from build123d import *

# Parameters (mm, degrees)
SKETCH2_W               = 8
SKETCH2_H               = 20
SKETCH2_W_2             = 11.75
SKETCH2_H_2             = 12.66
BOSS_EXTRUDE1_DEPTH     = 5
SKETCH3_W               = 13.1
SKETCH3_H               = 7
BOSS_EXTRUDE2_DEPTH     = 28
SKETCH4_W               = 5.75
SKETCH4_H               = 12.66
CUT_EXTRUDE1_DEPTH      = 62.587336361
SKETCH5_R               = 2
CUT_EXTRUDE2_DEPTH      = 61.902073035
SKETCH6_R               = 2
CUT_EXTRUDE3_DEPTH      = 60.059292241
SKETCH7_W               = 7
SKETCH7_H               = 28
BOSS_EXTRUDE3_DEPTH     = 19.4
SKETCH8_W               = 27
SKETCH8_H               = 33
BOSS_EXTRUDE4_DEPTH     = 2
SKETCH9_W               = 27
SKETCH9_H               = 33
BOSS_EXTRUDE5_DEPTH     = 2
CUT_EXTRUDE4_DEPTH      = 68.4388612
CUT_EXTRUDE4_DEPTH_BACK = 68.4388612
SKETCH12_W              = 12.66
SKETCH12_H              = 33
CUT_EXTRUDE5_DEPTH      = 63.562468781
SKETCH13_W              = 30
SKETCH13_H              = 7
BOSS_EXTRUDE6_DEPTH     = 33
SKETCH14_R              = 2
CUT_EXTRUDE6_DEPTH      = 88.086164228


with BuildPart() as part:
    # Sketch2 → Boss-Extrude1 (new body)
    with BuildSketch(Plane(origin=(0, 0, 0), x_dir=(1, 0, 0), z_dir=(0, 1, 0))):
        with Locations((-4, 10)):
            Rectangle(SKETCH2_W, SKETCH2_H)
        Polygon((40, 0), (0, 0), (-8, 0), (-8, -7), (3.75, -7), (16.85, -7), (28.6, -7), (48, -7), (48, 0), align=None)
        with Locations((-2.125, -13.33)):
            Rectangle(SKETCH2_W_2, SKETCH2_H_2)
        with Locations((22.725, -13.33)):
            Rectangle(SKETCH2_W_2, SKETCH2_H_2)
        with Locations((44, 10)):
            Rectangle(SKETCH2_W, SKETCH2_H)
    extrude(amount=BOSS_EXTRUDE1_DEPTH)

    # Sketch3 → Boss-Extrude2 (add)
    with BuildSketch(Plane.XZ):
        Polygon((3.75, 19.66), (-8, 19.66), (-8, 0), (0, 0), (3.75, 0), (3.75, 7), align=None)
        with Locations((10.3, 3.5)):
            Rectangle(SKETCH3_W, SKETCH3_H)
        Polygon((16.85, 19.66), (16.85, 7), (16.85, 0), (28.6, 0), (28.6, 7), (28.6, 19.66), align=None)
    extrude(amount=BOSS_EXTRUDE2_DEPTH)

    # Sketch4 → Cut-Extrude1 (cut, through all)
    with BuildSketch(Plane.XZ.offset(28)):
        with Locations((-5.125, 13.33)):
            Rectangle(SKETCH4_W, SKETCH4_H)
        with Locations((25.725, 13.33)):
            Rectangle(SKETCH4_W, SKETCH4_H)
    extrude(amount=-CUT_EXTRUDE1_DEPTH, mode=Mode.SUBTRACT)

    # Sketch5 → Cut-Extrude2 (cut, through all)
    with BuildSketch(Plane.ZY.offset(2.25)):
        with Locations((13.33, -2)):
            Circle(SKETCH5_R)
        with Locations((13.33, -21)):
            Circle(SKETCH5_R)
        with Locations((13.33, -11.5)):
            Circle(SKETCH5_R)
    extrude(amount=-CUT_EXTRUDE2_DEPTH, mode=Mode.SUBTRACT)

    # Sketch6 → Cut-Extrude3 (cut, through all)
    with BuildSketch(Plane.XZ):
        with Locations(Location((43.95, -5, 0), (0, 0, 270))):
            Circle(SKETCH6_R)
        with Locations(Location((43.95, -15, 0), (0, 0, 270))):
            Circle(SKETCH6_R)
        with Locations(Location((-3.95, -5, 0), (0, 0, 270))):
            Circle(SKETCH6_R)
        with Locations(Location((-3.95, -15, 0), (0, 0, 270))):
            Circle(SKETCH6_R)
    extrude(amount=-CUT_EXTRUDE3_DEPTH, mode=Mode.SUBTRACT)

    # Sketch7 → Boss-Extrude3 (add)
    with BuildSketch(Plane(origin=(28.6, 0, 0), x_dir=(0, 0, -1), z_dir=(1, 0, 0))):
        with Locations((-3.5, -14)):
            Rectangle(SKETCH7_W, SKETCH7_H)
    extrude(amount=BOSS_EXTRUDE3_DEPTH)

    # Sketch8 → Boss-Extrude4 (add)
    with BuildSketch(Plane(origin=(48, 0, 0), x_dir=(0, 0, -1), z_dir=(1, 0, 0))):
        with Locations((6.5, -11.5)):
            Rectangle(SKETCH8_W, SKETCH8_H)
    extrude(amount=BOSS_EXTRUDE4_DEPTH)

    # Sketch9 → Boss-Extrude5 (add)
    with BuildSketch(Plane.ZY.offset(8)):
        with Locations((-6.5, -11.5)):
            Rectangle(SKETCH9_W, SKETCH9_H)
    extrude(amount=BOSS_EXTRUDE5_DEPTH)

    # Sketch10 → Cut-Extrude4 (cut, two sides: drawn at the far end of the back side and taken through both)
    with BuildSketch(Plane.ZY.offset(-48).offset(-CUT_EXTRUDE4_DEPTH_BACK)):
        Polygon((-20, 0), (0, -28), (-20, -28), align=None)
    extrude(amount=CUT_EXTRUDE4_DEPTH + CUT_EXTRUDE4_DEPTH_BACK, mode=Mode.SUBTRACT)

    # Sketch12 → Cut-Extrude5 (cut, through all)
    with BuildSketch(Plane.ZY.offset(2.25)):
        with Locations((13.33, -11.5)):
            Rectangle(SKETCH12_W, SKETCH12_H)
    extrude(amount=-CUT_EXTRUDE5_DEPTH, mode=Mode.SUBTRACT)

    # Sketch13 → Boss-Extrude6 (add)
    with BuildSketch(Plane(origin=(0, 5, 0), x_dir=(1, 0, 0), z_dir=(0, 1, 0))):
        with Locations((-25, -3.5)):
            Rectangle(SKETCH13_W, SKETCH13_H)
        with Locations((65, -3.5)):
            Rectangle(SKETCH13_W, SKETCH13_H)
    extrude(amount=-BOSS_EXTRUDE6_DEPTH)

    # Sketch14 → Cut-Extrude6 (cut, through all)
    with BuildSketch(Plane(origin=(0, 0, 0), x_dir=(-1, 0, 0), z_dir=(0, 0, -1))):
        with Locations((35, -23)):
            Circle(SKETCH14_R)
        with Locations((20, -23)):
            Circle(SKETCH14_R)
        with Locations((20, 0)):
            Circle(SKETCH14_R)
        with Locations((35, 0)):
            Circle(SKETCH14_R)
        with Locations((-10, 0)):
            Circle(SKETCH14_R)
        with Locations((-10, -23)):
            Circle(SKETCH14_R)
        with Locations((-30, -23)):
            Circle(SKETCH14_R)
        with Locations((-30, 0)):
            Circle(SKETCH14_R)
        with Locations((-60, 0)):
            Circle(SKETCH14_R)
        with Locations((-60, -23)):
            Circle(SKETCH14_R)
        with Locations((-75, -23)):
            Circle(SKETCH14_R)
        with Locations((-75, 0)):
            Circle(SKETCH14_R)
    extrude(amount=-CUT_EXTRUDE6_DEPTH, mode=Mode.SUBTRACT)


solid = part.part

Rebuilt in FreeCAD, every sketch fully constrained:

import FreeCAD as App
import Part
import Sketcher


def add_polygon(sketch, points):
    """Adds a closed chain of lines whose ends are joined by coincident constraints."""
    first, n = sketch.GeometryCount, len(points)
    for a, b in zip(points, points[1:] + points[:1]):
        sketch.addGeometry(Part.LineSegment(App.Vector(*a, 0), App.Vector(*b, 0)), False)
    for i in range(n):
        sketch.addConstraint(Sketcher.Constraint("Coincident", first + i, 2, first + (i + 1) % n, 1))

doc = App.newDocument("Part")
body = doc.addObject("PartDesign::Body", "Body")

# Sketch on XZ plane
sketch1 = body.newObject("Sketcher::SketchObject", "Sketch")
sketch1.AttachmentSupport = (doc.getObject("XZ_Plane"), [""])
sketch1.MapMode = "FlatFace"
add_polygon(sketch1, [(-8, -20), (-8, 19.66), (3.75, 19.66), (3.75, 7), (16.85, 7), (16.85, 19.66), (28.6, 19.66), (28.6, 7), (48, 7), (48, -20), (40, -20), (40, 0), (0, 0), (0, -20)])  # lines 0-13
sketch1.addConstraint(Sketcher.Constraint("Vertical", 0))
sketch1.addConstraint(Sketcher.Constraint("Horizontal", 1))
sketch1.addConstraint(Sketcher.Constraint("Vertical", 2))
sketch1.addConstraint(Sketcher.Constraint("Horizontal", 3))
sketch1.addConstraint(Sketcher.Constraint("Vertical", 4))
sketch1.addConstraint(Sketcher.Constraint("Horizontal", 5))
sketch1.addConstraint(Sketcher.Constraint("Vertical", 6))
sketch1.addConstraint(Sketcher.Constraint("Horizontal", 7))
sketch1.addConstraint(Sketcher.Constraint("Vertical", 8))
sketch1.addConstraint(Sketcher.Constraint("Horizontal", 9))
sketch1.addConstraint(Sketcher.Constraint("Vertical", 10))
sketch1.addConstraint(Sketcher.Constraint("Horizontal", 11))
sketch1.addConstraint(Sketcher.Constraint("Vertical", 12))
sketch1.addConstraint(Sketcher.Constraint("Horizontal", 13))
sketch1.addConstraint(Sketcher.Constraint("Coincident", 11, 2, -1, 1))
sketch1.addConstraint(Sketcher.Constraint("Horizontal", 1, 2, 4, 2))
sketch1.addConstraint(Sketcher.Constraint("Horizontal", 3, 2, 6, 2))
sketch1.addConstraint(Sketcher.Constraint("Horizontal", 9, 2, 12, 2))
sketch1.addConstraint(Sketcher.Constraint("Equal", 1, 5))
sketch1.addConstraint(Sketcher.Constraint("Equal", 9, 13))
sketch1.addConstraint(Sketcher.Constraint("DistanceX", 9, 2, 9, 1, 8.0))
sketch1.addConstraint(Sketcher.Constraint("DistanceX", 11, 2, 11, 1, 40.0))
sketch1.addConstraint(Sketcher.Constraint("DistanceY", 8, 2, 8, 1, 27.0))
sketch1.addConstraint(Sketcher.Constraint("DistanceY", 10, 1, 10, 2, 20.0))
sketch1.addConstraint(Sketcher.Constraint("DistanceX", 3, 1, 3, 2, 13.1))
sketch1.addConstraint(Sketcher.Constraint("DistanceX", 7, 1, 7, 2, 19.4))
sketch1.addConstraint(Sketcher.Constraint("DistanceY", 0, 1, 0, 2, 39.66))
pad1 = body.newObject("PartDesign::Pad", "Pad")
pad1.Profile = sketch1
pad1.Length = 5
pad1.Reversed = True

# Sketch on XZ plane
sketch2 = body.newObject("Sketcher::SketchObject", "Sketch001")
sketch2.AttachmentSupport = (doc.getObject("XZ_Plane"), [""])
sketch2.MapMode = "FlatFace"
add_polygon(sketch2, [(3.75, 19.66), (-8, 19.66), (-8, 0), (28.6, 0), (28.6, 19.66), (16.85, 19.66), (16.85, 7), (3.75, 7)])  # lines 0-7
sketch2.addConstraint(Sketcher.Constraint("Horizontal", 0))
sketch2.addConstraint(Sketcher.Constraint("Vertical", 1))
sketch2.addConstraint(Sketcher.Constraint("Horizontal", 2))
sketch2.addConstraint(Sketcher.Constraint("Vertical", 3))
sketch2.addConstraint(Sketcher.Constraint("Horizontal", 4))
sketch2.addConstraint(Sketcher.Constraint("Vertical", 5))
sketch2.addConstraint(Sketcher.Constraint("Horizontal", 6))
sketch2.addConstraint(Sketcher.Constraint("Vertical", 7))
sketch2.addConstraint(Sketcher.Constraint("PointOnObject", 1, 2, -1))
sketch2.addConstraint(Sketcher.Constraint("Horizontal", 0, 2, 3, 2))
sketch2.addConstraint(Sketcher.Constraint("Equal", 0, 4))
sketch2.addConstraint(Sketcher.Constraint("DistanceX", 2, 1, 2, 2, 36.6))
sketch2.addConstraint(Sketcher.Constraint("DistanceX", 6, 2, 6, 1, 13.1))
sketch2.addConstraint(Sketcher.Constraint("DistanceX", 0, 2, -1, 1, 8.0))
sketch2.addConstraint(Sketcher.Constraint("DistanceY", -1, 1, 5, 2, 7.0))
sketch2.addConstraint(Sketcher.Constraint("DistanceY", 1, 2, 1, 1, 19.66))
pad2 = body.newObject("PartDesign::Pad", "Pad001")
pad2.Profile = sketch2
pad2.Length = 28

# Sketch on XZ plane
sketch3 = body.newObject("Sketcher::SketchObject", "Sketch002")
sketch3.AttachmentSupport = (doc.getObject("XZ_Plane"), [""])
sketch3.MapMode = "FlatFace"
sketch3.AttachmentOffset = App.Placement(App.Vector(0, 0, 28), App.Rotation())
add_polygon(sketch3, [(-8, 19.66), (-8, 7), (-2.25, 7), (-2.25, 19.66)])  # lines 0-3
add_polygon(sketch3, [(22.85, 19.66), (22.85, 7), (28.6, 7), (28.6, 19.66)])  # lines 4-7
sketch3.addConstraint(Sketcher.Constraint("Vertical", 0))
sketch3.addConstraint(Sketcher.Constraint("Horizontal", 1))
sketch3.addConstraint(Sketcher.Constraint("Vertical", 2))
sketch3.addConstraint(Sketcher.Constraint("Horizontal", 3))
sketch3.addConstraint(Sketcher.Constraint("Vertical", 4))
sketch3.addConstraint(Sketcher.Constraint("Horizontal", 5))
sketch3.addConstraint(Sketcher.Constraint("Vertical", 6))
sketch3.addConstraint(Sketcher.Constraint("Horizontal", 7))
sketch3.addConstraint(Sketcher.Constraint("Horizontal", 1, 2, 4, 2))
sketch3.addConstraint(Sketcher.Constraint("Horizontal", 3, 2, 6, 2))
sketch3.addConstraint(Sketcher.Constraint("Equal", 3, 5))
sketch3.addConstraint(Sketcher.Constraint("DistanceX", 0, 2, -1, 1, 8.0))
sketch3.addConstraint(Sketcher.Constraint("DistanceY", -1, 1, 0, 2, 7.0))
sketch3.addConstraint(Sketcher.Constraint("DistanceX", 1, 1, 1, 2, 5.75))
sketch3.addConstraint(Sketcher.Constraint("DistanceY", 0, 2, 0, 1, 12.66))
sketch3.addConstraint(Sketcher.Constraint("DistanceX", -1, 1, 5, 2, 28.6))
pocket1 = body.newObject("PartDesign::Pocket", "Pocket")
pocket1.Profile = sketch3
pocket1.Type = "ThroughAll"

# Sketch on YZ plane
sketch4 = body.newObject("Sketcher::SketchObject", "Sketch003")
sketch4.AttachmentSupport = (doc.getObject("YZ_Plane"), [""])
sketch4.MapMode = "FlatFace"
sketch4.AttachmentOffset = App.Placement(App.Vector(0, 0, -2.25), App.Rotation())
sketch4.addGeometry(Part.Circle(App.Vector(-2, 13.33, 0), App.Vector(0, 0, 1), 2), False)
sketch4.addGeometry(Part.Circle(App.Vector(-21, 13.33, 0), App.Vector(0, 0, 1), 2), False)
sketch4.addGeometry(Part.Circle(App.Vector(-11.5, 13.33, 0), App.Vector(0, 0, 1), 2), False)
sketch4.addConstraint(Sketcher.Constraint("Equal", 0, 1))
sketch4.addConstraint(Sketcher.Constraint("Equal", 1, 2))
sketch4.addConstraint(Sketcher.Constraint("Horizontal", 0, 3, 1, 3))
sketch4.addConstraint(Sketcher.Constraint("Horizontal", 1, 3, 2, 3))
sketch4.addConstraint(Sketcher.Constraint("Diameter", 0, 4.0))
sketch4.addConstraint(Sketcher.Constraint("DistanceX", 0, 3, -1, 1, 2.0))
sketch4.addConstraint(Sketcher.Constraint("DistanceX", 1, 3, -1, 1, 21.0))
sketch4.addConstraint(Sketcher.Constraint("DistanceX", 2, 3, -1, 1, 11.5))
sketch4.addConstraint(Sketcher.Constraint("DistanceY", -1, 1, 0, 3, 13.33))
pocket2 = body.newObject("PartDesign::Pocket", "Pocket001")
pocket2.Profile = sketch4
pocket2.Type = "ThroughAll"
pocket2.Reversed = True

# Sketch on XZ plane
sketch5 = body.newObject("Sketcher::SketchObject", "Sketch004")
sketch5.AttachmentSupport = (doc.getObject("XZ_Plane"), [""])
sketch5.MapMode = "FlatFace"
sketch5.addGeometry(Part.Circle(App.Vector(43.95, -5, 0), App.Vector(0, 0, 1), 2), False)
sketch5.addGeometry(Part.Circle(App.Vector(43.95, -15, 0), App.Vector(0, 0, 1), 2), False)
sketch5.addGeometry(Part.Circle(App.Vector(-3.95, -5, 0), App.Vector(0, 0, 1), 2), False)
sketch5.addGeometry(Part.Circle(App.Vector(-3.95, -15, 0), App.Vector(0, 0, 1), 2), False)
sketch5.addConstraint(Sketcher.Constraint("Equal", 0, 1))
sketch5.addConstraint(Sketcher.Constraint("Equal", 1, 2))
sketch5.addConstraint(Sketcher.Constraint("Equal", 2, 3))
sketch5.addConstraint(Sketcher.Constraint("Horizontal", 0, 3, 2, 3))
sketch5.addConstraint(Sketcher.Constraint("Horizontal", 1, 3, 3, 3))
sketch5.addConstraint(Sketcher.Constraint("Vertical", 0, 3, 1, 3))
sketch5.addConstraint(Sketcher.Constraint("Vertical", 2, 3, 3, 3))
sketch5.addConstraint(Sketcher.Constraint("Diameter", 0, 4.0))
sketch5.addConstraint(Sketcher.Constraint("DistanceY", 0, 3, -1, 1, 5.0))
sketch5.addConstraint(Sketcher.Constraint("DistanceY", 1, 3, -1, 1, 15.0))
sketch5.addConstraint(Sketcher.Constraint("DistanceX", 2, 3, 0, 3, 47.9))
sketch5.addConstraint(Sketcher.Constraint("DistanceX", -1, 1, 0, 3, 43.95))
pocket3 = body.newObject("PartDesign::Pocket", "Pocket002")
pocket3.Profile = sketch5
pocket3.Type = "ThroughAll"

# Sketch on YZ plane
sketch6 = body.newObject("Sketcher::SketchObject", "Sketch005")
sketch6.AttachmentSupport = (doc.getObject("YZ_Plane"), [""])
sketch6.MapMode = "FlatFace"
sketch6.AttachmentOffset = App.Placement(App.Vector(0, 0, 28.6), App.Rotation())
add_polygon(sketch6, [(0, 7), (-28, 7), (-28, 0), (0, 0)])  # lines 0-3
sketch6.addConstraint(Sketcher.Constraint("Horizontal", 0))
sketch6.addConstraint(Sketcher.Constraint("Vertical", 1))
sketch6.addConstraint(Sketcher.Constraint("Horizontal", 2))
sketch6.addConstraint(Sketcher.Constraint("Vertical", 3))
sketch6.addConstraint(Sketcher.Constraint("Coincident", 2, 2, -1, 1))
sketch6.addConstraint(Sketcher.Constraint("DistanceX", 0, 2, 0, 1, 28.0))
sketch6.addConstraint(Sketcher.Constraint("DistanceY", 1, 2, 1, 1, 7.0))
pad3 = body.newObject("PartDesign::Pad", "Pad002")
pad3.Profile = sketch6
pad3.Length = 19.4

# Sketch on YZ plane
sketch7 = body.newObject("Sketcher::SketchObject", "Sketch006")
sketch7.AttachmentSupport = (doc.getObject("YZ_Plane"), [""])
sketch7.MapMode = "FlatFace"
sketch7.AttachmentOffset = App.Placement(App.Vector(0, 0, 48), App.Rotation())
add_polygon(sketch7, [(5, 7), (-28, 7), (-28, -20), (5, -20)])  # lines 0-3
sketch7.addConstraint(Sketcher.Constraint("Horizontal", 0))
sketch7.addConstraint(Sketcher.Constraint("Vertical", 1))
sketch7.addConstraint(Sketcher.Constraint("Horizontal", 2))
sketch7.addConstraint(Sketcher.Constraint("Vertical", 3))
sketch7.addConstraint(Sketcher.Constraint("DistanceX", 0, 2, 0, 1, 33.0))
sketch7.addConstraint(Sketcher.Constraint("DistanceY", 1, 2, 1, 1, 27.0))
sketch7.addConstraint(Sketcher.Constraint("DistanceX", 0, 2, -1, 1, 28.0))
sketch7.addConstraint(Sketcher.Constraint("DistanceY", -1, 1, 0, 2, 7.0))
pad4 = body.newObject("PartDesign::Pad", "Pad003")
pad4.Profile = sketch7
pad4.Length = 2

# Sketch on YZ plane
sketch8 = body.newObject("Sketcher::SketchObject", "Sketch007")
sketch8.AttachmentSupport = (doc.getObject("YZ_Plane"), [""])
sketch8.MapMode = "FlatFace"
sketch8.AttachmentOffset = App.Placement(App.Vector(0, 0, -8), App.Rotation())
add_polygon(sketch8, [(5, -20), (-28, -20), (-28, 7), (5, 7)])  # lines 0-3
sketch8.addConstraint(Sketcher.Constraint("Horizontal", 0))
sketch8.addConstraint(Sketcher.Constraint("Vertical", 1))
sketch8.addConstraint(Sketcher.Constraint("Horizontal", 2))
sketch8.addConstraint(Sketcher.Constraint("Vertical", 3))
sketch8.addConstraint(Sketcher.Constraint("DistanceX", 0, 2, 0, 1, 33.0))
sketch8.addConstraint(Sketcher.Constraint("DistanceY", 1, 1, 1, 2, 27.0))
sketch8.addConstraint(Sketcher.Constraint("DistanceX", 0, 2, -1, 1, 28.0))
sketch8.addConstraint(Sketcher.Constraint("DistanceY", 0, 2, -1, 1, 20.0))
pad5 = body.newObject("PartDesign::Pad", "Pad004")
pad5.Profile = sketch8
pad5.Length = 2
pad5.Reversed = True

# Sketch on YZ plane
sketch9 = body.newObject("Sketcher::SketchObject", "Sketch008")
sketch9.AttachmentSupport = (doc.getObject("YZ_Plane"), [""])
sketch9.MapMode = "FlatFace"
sketch9.AttachmentOffset = App.Placement(App.Vector(0, 0, 48), App.Rotation())
add_polygon(sketch9, [(-28, 0), (0, -20), (-28, -20)])  # lines 0-2
sketch9.addConstraint(Sketcher.Constraint("Horizontal", 1))
sketch9.addConstraint(Sketcher.Constraint("Vertical", 2))
sketch9.addConstraint(Sketcher.Constraint("PointOnObject", 0, 2, -2))
sketch9.addConstraint(Sketcher.Constraint("PointOnObject", 2, 2, -1))
sketch9.addConstraint(Sketcher.Constraint("DistanceX", 1, 2, 1, 1, 28.0))
sketch9.addConstraint(Sketcher.Constraint("DistanceY", 2, 1, 2, 2, 20.0))
pocket4 = body.newObject("PartDesign::Pocket", "Pocket003")
pocket4.Profile = sketch9
pocket4.Type = "ThroughAll"
pocket4.Midplane = True

# Sketch on YZ plane
sketch10 = body.newObject("Sketcher::SketchObject", "Sketch009")
sketch10.AttachmentSupport = (doc.getObject("YZ_Plane"), [""])
sketch10.MapMode = "FlatFace"
sketch10.AttachmentOffset = App.Placement(App.Vector(0, 0, -2.25), App.Rotation())
add_polygon(sketch10, [(5, 7), (-28, 7), (-28, 19.66), (5, 19.66)])  # lines 0-3
sketch10.addConstraint(Sketcher.Constraint("Horizontal", 0))
sketch10.addConstraint(Sketcher.Constraint("Vertical", 1))
sketch10.addConstraint(Sketcher.Constraint("Horizontal", 2))
sketch10.addConstraint(Sketcher.Constraint("Vertical", 3))
sketch10.addConstraint(Sketcher.Constraint("DistanceX", 0, 2, 0, 1, 33.0))
sketch10.addConstraint(Sketcher.Constraint("DistanceX", 0, 2, -1, 1, 28.0))
sketch10.addConstraint(Sketcher.Constraint("DistanceY", -1, 1, 0, 2, 7.0))
sketch10.addConstraint(Sketcher.Constraint("DistanceY", 1, 1, 1, 2, 12.66))
pocket5 = body.newObject("PartDesign::Pocket", "Pocket004")
pocket5.Profile = sketch10
pocket5.Type = "ThroughAll"
pocket5.Reversed = True

# Sketch on XZ plane
sketch11 = body.newObject("Sketcher::SketchObject", "Sketch010")
sketch11.AttachmentSupport = (doc.getObject("XZ_Plane"), [""])
sketch11.MapMode = "FlatFace"
sketch11.AttachmentOffset = App.Placement(App.Vector(0, 0, -5), App.Rotation())
add_polygon(sketch11, [(-40, 0), (-40, 7), (-10, 7), (-10, 0)])  # lines 0-3
add_polygon(sketch11, [(50, 0), (50, 7), (80, 7), (80, 0)])  # lines 4-7
sketch11.addConstraint(Sketcher.Constraint("Vertical", 0))
sketch11.addConstraint(Sketcher.Constraint("Horizontal", 1))
sketch11.addConstraint(Sketcher.Constraint("Vertical", 2))
sketch11.addConstraint(Sketcher.Constraint("Horizontal", 3))
sketch11.addConstraint(Sketcher.Constraint("Vertical", 4))
sketch11.addConstraint(Sketcher.Constraint("Horizontal", 5))
sketch11.addConstraint(Sketcher.Constraint("Vertical", 6))
sketch11.addConstraint(Sketcher.Constraint("Horizontal", 7))
sketch11.addConstraint(Sketcher.Constraint("PointOnObject", 2, 2, -1))
sketch11.addConstraint(Sketcher.Constraint("PointOnObject", 6, 2, -1))
sketch11.addConstraint(Sketcher.Constraint("Horizontal", 1, 2, 4, 2))
sketch11.addConstraint(Sketcher.Constraint("Equal", 3, 5))
sketch11.addConstraint(Sketcher.Constraint("DistanceX", 1, 1, 1, 2, 30.0))
sketch11.addConstraint(Sketcher.Constraint("DistanceY", 0, 1, 0, 2, 7.0))
sketch11.addConstraint(Sketcher.Constraint("DistanceX", 0, 2, -1, 1, 40.0))
sketch11.addConstraint(Sketcher.Constraint("DistanceX", -1, 1, 4, 2, 50.0))
pad6 = body.newObject("PartDesign::Pad", "Pad005")
pad6.Profile = sketch11
pad6.Length = 33

# Sketch on XY plane
sketch12 = body.newObject("Sketcher::SketchObject", "Sketch011")
sketch12.AttachmentSupport = (doc.getObject("XY_Plane"), [""])
sketch12.MapMode = "FlatFace"
sketch12.addGeometry(Part.Circle(App.Vector(-35, -23, 0), App.Vector(0, 0, 1), 2), False)
sketch12.addGeometry(Part.Circle(App.Vector(-20, -23, 0), App.Vector(0, 0, 1), 2), False)
sketch12.addGeometry(Part.Circle(App.Vector(-20, 0, 0), App.Vector(0, 0, 1), 2), False)
sketch12.addGeometry(Part.Circle(App.Vector(-35, 0, 0), App.Vector(0, 0, 1), 2), False)
sketch12.addGeometry(Part.Circle(App.Vector(10, 0, 0), App.Vector(0, 0, 1), 2), False)
sketch12.addGeometry(Part.Circle(App.Vector(10, -23, 0), App.Vector(0, 0, 1), 2), False)
sketch12.addGeometry(Part.Circle(App.Vector(30, -23, 0), App.Vector(0, 0, 1), 2), False)
sketch12.addGeometry(Part.Circle(App.Vector(30, 0, 0), App.Vector(0, 0, 1), 2), False)
sketch12.addGeometry(Part.Circle(App.Vector(60, 0, 0), App.Vector(0, 0, 1), 2), False)
sketch12.addGeometry(Part.Circle(App.Vector(60, -23, 0), App.Vector(0, 0, 1), 2), False)
sketch12.addGeometry(Part.Circle(App.Vector(75, -23, 0), App.Vector(0, 0, 1), 2), False)
sketch12.addGeometry(Part.Circle(App.Vector(75, 0, 0), App.Vector(0, 0, 1), 2), False)
sketch12.addConstraint(Sketcher.Constraint("Equal", 0, 1))
sketch12.addConstraint(Sketcher.Constraint("Equal", 1, 2))
sketch12.addConstraint(Sketcher.Constraint("Equal", 2, 3))
sketch12.addConstraint(Sketcher.Constraint("Equal", 3, 4))
sketch12.addConstraint(Sketcher.Constraint("Equal", 4, 5))
sketch12.addConstraint(Sketcher.Constraint("Equal", 5, 6))
sketch12.addConstraint(Sketcher.Constraint("Equal", 6, 7))
sketch12.addConstraint(Sketcher.Constraint("Equal", 7, 8))
sketch12.addConstraint(Sketcher.Constraint("Equal", 8, 9))
sketch12.addConstraint(Sketcher.Constraint("Equal", 9, 10))
sketch12.addConstraint(Sketcher.Constraint("Equal", 10, 11))
sketch12.addConstraint(Sketcher.Constraint("PointOnObject", 2, 3, -1))
sketch12.addConstraint(Sketcher.Constraint("PointOnObject", 3, 3, -1))
sketch12.addConstraint(Sketcher.Constraint("PointOnObject", 4, 3, -1))
sketch12.addConstraint(Sketcher.Constraint("PointOnObject", 7, 3, -1))
sketch12.addConstraint(Sketcher.Constraint("PointOnObject", 8, 3, -1))
sketch12.addConstraint(Sketcher.Constraint("PointOnObject", 11, 3, -1))
sketch12.addConstraint(Sketcher.Constraint("Horizontal", 0, 3, 1, 3))
sketch12.addConstraint(Sketcher.Constraint("Horizontal", 1, 3, 5, 3))
sketch12.addConstraint(Sketcher.Constraint("Horizontal", 5, 3, 6, 3))
sketch12.addConstraint(Sketcher.Constraint("Horizontal", 6, 3, 9, 3))
sketch12.addConstraint(Sketcher.Constraint("Horizontal", 9, 3, 10, 3))
sketch12.addConstraint(Sketcher.Constraint("Vertical", 1, 3, 2, 3))
sketch12.addConstraint(Sketcher.Constraint("Vertical", 0, 3, 3, 3))
sketch12.addConstraint(Sketcher.Constraint("Vertical", 4, 3, 5, 3))
sketch12.addConstraint(Sketcher.Constraint("Vertical", 6, 3, 7, 3))
sketch12.addConstraint(Sketcher.Constraint("Vertical", 8, 3, 9, 3))
sketch12.addConstraint(Sketcher.Constraint("Vertical", 10, 3, 11, 3))
sketch12.addConstraint(Sketcher.Constraint("Diameter", 0, 4.0))
sketch12.addConstraint(Sketcher.Constraint("DistanceX", 0, 3, -1, 1, 35.0))
sketch12.addConstraint(Sketcher.Constraint("DistanceY", 0, 3, -1, 1, 23.0))
sketch12.addConstraint(Sketcher.Constraint("DistanceX", 1, 3, -1, 1, 20.0))
sketch12.addConstraint(Sketcher.Constraint("DistanceX", -1, 1, 4, 3, 10.0))
sketch12.addConstraint(Sketcher.Constraint("DistanceX", -1, 1, 6, 3, 30.0))
sketch12.addConstraint(Sketcher.Constraint("DistanceX", -1, 1, 8, 3, 60.0))
sketch12.addConstraint(Sketcher.Constraint("DistanceX", -1, 1, 10, 3, 75.0))
pocket6 = body.newObject("PartDesign::Pocket", "Pocket005")
pocket6.Profile = sketch12
pocket6.Type = "ThroughAll"
pocket6.Reversed = True

doc.recompute()
